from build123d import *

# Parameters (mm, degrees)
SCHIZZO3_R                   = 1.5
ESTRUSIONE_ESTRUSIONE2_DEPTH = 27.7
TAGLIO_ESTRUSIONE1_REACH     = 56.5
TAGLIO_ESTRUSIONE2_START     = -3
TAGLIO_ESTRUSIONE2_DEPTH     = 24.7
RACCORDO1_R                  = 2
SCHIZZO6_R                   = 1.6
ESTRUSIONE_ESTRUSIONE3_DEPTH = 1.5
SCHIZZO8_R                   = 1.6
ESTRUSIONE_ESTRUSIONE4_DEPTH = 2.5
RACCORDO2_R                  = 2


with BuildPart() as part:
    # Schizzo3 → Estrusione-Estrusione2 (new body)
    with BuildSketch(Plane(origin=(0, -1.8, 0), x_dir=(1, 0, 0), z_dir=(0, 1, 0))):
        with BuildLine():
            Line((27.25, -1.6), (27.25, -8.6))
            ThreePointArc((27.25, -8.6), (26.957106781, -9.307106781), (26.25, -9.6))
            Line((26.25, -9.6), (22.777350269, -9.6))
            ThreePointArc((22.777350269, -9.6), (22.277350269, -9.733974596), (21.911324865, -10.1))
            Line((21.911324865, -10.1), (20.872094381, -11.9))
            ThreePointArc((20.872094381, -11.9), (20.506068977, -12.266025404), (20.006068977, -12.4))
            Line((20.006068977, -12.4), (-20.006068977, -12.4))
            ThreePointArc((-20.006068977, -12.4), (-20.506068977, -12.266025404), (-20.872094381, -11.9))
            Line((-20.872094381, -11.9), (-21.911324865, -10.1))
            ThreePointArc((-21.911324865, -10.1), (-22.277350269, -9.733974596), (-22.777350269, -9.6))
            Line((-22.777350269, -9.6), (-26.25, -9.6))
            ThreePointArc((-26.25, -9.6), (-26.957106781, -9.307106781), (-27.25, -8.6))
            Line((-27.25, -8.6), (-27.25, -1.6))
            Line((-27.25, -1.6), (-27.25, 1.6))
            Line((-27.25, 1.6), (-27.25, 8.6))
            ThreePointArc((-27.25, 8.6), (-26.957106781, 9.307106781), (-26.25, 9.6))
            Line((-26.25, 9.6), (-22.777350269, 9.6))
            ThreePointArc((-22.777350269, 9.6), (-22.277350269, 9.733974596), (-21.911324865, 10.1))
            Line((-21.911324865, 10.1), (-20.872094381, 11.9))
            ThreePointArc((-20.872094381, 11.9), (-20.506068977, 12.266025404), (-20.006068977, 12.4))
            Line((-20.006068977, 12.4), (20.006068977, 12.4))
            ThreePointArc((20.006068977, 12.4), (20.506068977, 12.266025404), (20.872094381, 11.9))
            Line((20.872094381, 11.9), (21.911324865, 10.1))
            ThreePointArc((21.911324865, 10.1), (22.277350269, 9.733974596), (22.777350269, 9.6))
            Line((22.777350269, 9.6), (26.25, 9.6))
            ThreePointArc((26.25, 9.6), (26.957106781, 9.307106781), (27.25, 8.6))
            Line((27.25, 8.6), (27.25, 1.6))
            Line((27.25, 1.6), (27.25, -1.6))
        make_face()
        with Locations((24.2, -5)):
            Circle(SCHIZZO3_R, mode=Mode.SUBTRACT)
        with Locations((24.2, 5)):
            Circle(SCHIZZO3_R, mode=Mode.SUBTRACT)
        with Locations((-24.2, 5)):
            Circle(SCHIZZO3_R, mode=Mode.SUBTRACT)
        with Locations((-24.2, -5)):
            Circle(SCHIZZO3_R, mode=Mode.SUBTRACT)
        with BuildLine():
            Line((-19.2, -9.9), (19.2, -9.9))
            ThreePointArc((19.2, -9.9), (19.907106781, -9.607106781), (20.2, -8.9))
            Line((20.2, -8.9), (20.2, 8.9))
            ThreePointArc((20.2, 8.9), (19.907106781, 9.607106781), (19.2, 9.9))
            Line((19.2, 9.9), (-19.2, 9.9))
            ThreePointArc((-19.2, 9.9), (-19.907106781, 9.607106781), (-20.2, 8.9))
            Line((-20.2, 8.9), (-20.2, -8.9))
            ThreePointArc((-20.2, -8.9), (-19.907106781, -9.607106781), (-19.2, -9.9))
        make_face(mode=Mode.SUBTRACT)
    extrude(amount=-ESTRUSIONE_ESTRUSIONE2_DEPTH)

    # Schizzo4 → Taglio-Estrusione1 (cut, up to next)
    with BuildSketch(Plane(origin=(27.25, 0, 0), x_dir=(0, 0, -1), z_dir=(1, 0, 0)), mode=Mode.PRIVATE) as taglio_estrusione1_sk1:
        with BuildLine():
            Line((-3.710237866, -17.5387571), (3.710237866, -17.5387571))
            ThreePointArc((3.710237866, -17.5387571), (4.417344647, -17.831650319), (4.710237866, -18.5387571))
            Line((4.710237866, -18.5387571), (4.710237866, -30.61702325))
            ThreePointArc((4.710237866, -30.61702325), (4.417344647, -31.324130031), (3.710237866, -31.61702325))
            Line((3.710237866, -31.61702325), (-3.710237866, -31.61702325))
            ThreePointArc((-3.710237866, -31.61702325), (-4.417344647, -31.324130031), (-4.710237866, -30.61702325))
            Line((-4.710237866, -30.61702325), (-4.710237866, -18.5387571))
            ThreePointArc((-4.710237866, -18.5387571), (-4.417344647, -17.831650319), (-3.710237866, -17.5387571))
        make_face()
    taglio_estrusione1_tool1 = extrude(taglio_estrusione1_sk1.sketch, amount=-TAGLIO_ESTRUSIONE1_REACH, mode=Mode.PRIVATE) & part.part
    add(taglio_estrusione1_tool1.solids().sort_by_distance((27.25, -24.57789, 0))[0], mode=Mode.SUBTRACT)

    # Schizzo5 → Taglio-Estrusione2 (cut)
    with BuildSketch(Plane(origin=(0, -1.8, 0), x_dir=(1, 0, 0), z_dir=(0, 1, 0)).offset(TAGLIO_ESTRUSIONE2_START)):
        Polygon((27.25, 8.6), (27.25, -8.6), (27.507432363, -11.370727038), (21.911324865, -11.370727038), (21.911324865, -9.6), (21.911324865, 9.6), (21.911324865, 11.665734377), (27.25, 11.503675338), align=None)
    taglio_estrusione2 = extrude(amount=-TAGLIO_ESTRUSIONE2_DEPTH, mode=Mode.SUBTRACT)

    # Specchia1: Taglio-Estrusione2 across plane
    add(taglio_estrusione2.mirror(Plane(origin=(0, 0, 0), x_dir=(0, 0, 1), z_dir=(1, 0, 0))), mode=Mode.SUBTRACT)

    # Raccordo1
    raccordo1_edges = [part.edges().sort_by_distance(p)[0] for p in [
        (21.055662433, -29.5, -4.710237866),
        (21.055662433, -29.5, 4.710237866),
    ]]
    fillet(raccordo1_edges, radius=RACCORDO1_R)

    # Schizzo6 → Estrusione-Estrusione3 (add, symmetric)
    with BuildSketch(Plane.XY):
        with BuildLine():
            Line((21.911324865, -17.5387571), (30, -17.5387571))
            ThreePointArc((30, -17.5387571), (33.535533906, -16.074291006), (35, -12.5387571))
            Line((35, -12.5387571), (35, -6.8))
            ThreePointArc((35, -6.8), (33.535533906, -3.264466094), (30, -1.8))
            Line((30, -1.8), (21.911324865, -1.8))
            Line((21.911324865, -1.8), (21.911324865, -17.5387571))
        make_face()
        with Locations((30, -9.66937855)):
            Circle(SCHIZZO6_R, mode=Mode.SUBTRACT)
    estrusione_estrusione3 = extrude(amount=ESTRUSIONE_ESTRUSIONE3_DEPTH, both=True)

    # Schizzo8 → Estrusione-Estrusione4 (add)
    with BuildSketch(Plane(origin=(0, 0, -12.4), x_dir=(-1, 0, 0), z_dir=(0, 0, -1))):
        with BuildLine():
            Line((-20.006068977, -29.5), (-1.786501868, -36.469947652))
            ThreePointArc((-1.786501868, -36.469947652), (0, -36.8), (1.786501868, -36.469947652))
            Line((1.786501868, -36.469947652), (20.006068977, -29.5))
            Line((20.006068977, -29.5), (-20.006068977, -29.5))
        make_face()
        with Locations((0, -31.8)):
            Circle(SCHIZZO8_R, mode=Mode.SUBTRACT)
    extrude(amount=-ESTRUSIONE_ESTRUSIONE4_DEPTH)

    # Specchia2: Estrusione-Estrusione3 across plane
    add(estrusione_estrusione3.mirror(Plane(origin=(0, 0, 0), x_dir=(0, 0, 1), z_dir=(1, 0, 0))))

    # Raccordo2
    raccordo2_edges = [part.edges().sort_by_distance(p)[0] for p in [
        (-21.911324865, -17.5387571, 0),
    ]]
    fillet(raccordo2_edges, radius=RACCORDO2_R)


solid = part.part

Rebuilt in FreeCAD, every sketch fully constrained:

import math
import FreeCAD as App
import Part
import Sketcher

V = App.Vector
Q = App.Units.Quantity


def edges_at(feature, points):
    """Names of the edges that pass closest to the given points."""
    edges = feature.Shape.Edges
    near = lambda p: min(range(len(edges)), key=lambda i: edges[i].distToShape(Part.Vertex(*p))[0])
    return sorted({f"Edge{near(p) + 1}" for p in points})

doc = App.newDocument("Part")
body = doc.addObject("PartDesign::Body", "Body")

sketch1 = body.newObject("Sketcher::SketchObject", "Sketch")
sketch1.AttachmentSupport = (doc.getObject("XZ_Plane"), [""])
sketch1.MapMode = "FlatFace"
sketch1.AttachmentOffset = App.Placement(V(0, 0, 1.8), App.Rotation())
sketch1.addGeometry(Part.ArcOfCircle(Part.Circle(V(26.2, 8.6, 0), V(0, 0, 1), 1), math.radians(0), math.radians(90)), False)
sketch1.addGeometry(Part.LineSegment(V(27.2, 8.6, 0), V(27.2, -8.6, 0)), False)
sketch1.addGeometry(Part.ArcOfCircle(Part.Circle(V(26.2, -8.6, 0), V(0, 0, 1), 1), math.radians(-90), math.radians(0)), False)
sketch1.addGeometry(Part.LineSegment(V(26.2, -9.6, 0), V(22.8, -9.6, 0)), False)
sketch1.addGeometry(Part.ArcOfCircle(Part.Circle(V(22.8, -10.6, 0), V(0, 0, 1), 1), math.radians(90), math.radians(150)), False)
sketch1.addGeometry(Part.LineSegment(V(21.9, -10.1, 0), V(20.9, -11.9, 0)), False)
sketch1.addGeometry(Part.ArcOfCircle(Part.Circle(V(20, -11.4, 0), V(0, 0, 1), 1), math.radians(-90), math.radians(-30)), False)
sketch1.addGeometry(Part.LineSegment(V(20, -12.4, 0), V(-20, -12.4, 0)), False)
sketch1.addGeometry(Part.ArcOfCircle(Part.Circle(V(-20, -11.4, 0), V(0, 0, 1), 1), math.radians(-150), math.radians(-90)), False)
sketch1.addGeometry(Part.LineSegment(V(-20.9, -11.9, 0), V(-21.9, -10.1, 0)), False)
sketch1.addGeometry(Part.ArcOfCircle(Part.Circle(V(-22.8, -10.6, 0), V(0, 0, 1), 1), math.radians(30), math.radians(90)), False)
sketch1.addGeometry(Part.LineSegment(V(-22.8, -9.6, 0), V(-26.2, -9.6, 0)), False)
sketch1.addGeometry(Part.ArcOfCircle(Part.Circle(V(-26.2, -8.6, 0), V(0, 0, 1), 1), math.radians(-180), math.radians(-90)), False)
sketch1.addGeometry(Part.LineSegment(V(-27.2, -8.6, 0), V(-27.2, 8.6, 0)), False)
sketch1.addGeometry(Part.ArcOfCircle(Part.Circle(V(-26.2, 8.6, 0), V(0, 0, 1), 1), math.radians(90), math.radians(180)), False)
sketch1.addGeometry(Part.LineSegment(V(-26.2, 9.6, 0), V(-22.8, 9.6, 0)), False)
sketch1.addGeometry(Part.ArcOfCircle(Part.Circle(V(-22.8, 10.6, 0), V(0, 0, 1), 1), math.radians(-90), math.radians(-30)), False)
sketch1.addGeometry(Part.LineSegment(V(-21.9, 10.1, 0), V(-20.9, 11.9, 0)), False)
sketch1.addGeometry(Part.ArcOfCircle(Part.Circle(V(-20, 11.4, 0), V(0, 0, 1), 1), math.radians(90), math.radians(150)), False)
sketch1.addGeometry(Part.LineSegment(V(-20, 12.4, 0), V(20, 12.4, 0)), False)
sketch1.addGeometry(Part.ArcOfCircle(Part.Circle(V(20, 11.4, 0), V(0, 0, 1), 1), math.radians(30), math.radians(90)), False)
sketch1.addGeometry(Part.LineSegment(V(20.9, 11.9, 0), V(21.9, 10.1, 0)), False)
sketch1.addGeometry(Part.ArcOfCircle(Part.Circle(V(22.8, 10.6, 0), V(0, 0, 1), 1), math.radians(-150), math.radians(-90)), False)
sketch1.addGeometry(Part.LineSegment(V(22.8, 9.6, 0), V(26.2, 9.6, 0)), False)
sketch1.addGeometry(Part.Circle(V(24.2, 5, 0), V(0, 0, 1), 1.5), False)
sketch1.addGeometry(Part.Circle(V(-24.2, 5, 0), V(0, 0, 1), 1.5), False)
sketch1.addGeometry(Part.Circle(V(24.2, -5, 0), V(0, 0, 1), 1.5), False)
sketch1.addGeometry(Part.ArcOfCircle(Part.Circle(V(-19.2, 8.9, 0), V(0, 0, 1), 1), math.radians(90), math.radians(180)), False)
sketch1.addGeometry(Part.LineSegment(V(-20.2, 8.9, 0), V(-20.2, -8.9, 0)), False)
sketch1.addGeometry(Part.ArcOfCircle(Part.Circle(V(-19.2, -8.9, 0), V(0, 0, 1), 1), math.radians(-180), math.radians(-90)), False)
sketch1.addGeometry(Part.LineSegment(V(-19.2, -9.9, 0), V(19.2, -9.9, 0)), False)
sketch1.addGeometry(Part.ArcOfCircle(Part.Circle(V(19.2, -8.9, 0), V(0, 0, 1), 1), math.radians(-90), math.radians(0)), False)
sketch1.addGeometry(Part.LineSegment(V(20.2, -8.9, 0), V(20.2, 8.9, 0)), False)
sketch1.addGeometry(Part.ArcOfCircle(Part.Circle(V(19.2, 8.9, 0), V(0, 0, 1), 1), math.radians(0), math.radians(90)), False)
sketch1.addGeometry(Part.LineSegment(V(19.2, 9.9, 0), V(-19.2, 9.9, 0)), False)
sketch1.addGeometry(Part.Circle(V(-24.2, -5, 0), V(0, 0, 1), 1.5), False)
sketch1.addConstraint(Sketcher.Constraint("Tangent", 0, 1, 1, 1))
sketch1.addConstraint(Sketcher.Constraint("Tangent", 1, 2, 2, 2))
sketch1.addConstraint(Sketcher.Constraint("Tangent", 2, 1, 3, 1))
sketch1.addConstraint(Sketcher.Constraint("Tangent", 3, 2, 4, 1))
sketch1.addConstraint(Sketcher.Constraint("Tangent", 4, 2, 5, 1))
sketch1.addConstraint(Sketcher.Constraint("Tangent", 5, 2, 6, 2))
sketch1.addConstraint(Sketcher.Constraint("Tangent", 6, 1, 7, 1))
sketch1.addConstraint(Sketcher.Constraint("Tangent", 7, 2, 8, 2))
sketch1.addConstraint(Sketcher.Constraint("Tangent", 8, 1, 9, 1))
sketch1.addConstraint(Sketcher.Constraint("Tangent", 9, 2, 10, 1))
sketch1.addConstraint(Sketcher.Constraint("Tangent", 10, 2, 11, 1))
sketch1.addConstraint(Sketcher.Constraint("Tangent", 11, 2, 12, 2))
sketch1.addConstraint(Sketcher.Constraint("Tangent", 12, 1, 13, 1))
sketch1.addConstraint(Sketcher.Constraint("Tangent", 13, 2, 14, 2))
sketch1.addConstraint(Sketcher.Constraint("Tangent", 14, 1, 15, 1))
sketch1.addConstraint(Sketcher.Constraint("Tangent", 15, 2, 16, 1))
sketch1.addConstraint(Sketcher.Constraint("Tangent", 16, 2, 17, 1))
sketch1.addConstraint(Sketcher.Constraint("Tangent", 17, 2, 18, 2))
sketch1.addConstraint(Sketcher.Constraint("Tangent", 18, 1, 19, 1))
sketch1.addConstraint(Sketcher.Constraint("Tangent", 19, 2, 20, 2))
sketch1.addConstraint(Sketcher.Constraint("Tangent", 20, 1, 21, 1))
sketch1.addConstraint(Sketcher.Constraint("Tangent", 21, 2, 22, 1))
sketch1.addConstraint(Sketcher.Constraint("Tangent", 22, 2, 23, 1))
sketch1.addConstraint(Sketcher.Constraint("Tangent", 23, 2, 0, 2))
sketch1.addConstraint(Sketcher.Constraint("Tangent", 27, 2, 28, 1))
sketch1.addConstraint(Sketcher.Constraint("Tangent", 28, 2, 29, 1))
sketch1.addConstraint(Sketcher.Constraint("Tangent", 29, 2, 30, 1))
sketch1.addConstraint(Sketcher.Constraint("Tangent", 30, 2, 31, 1))
sketch1.addConstraint(Sketcher.Constraint("Tangent", 31, 2, 32, 1))
sketch1.addConstraint(Sketcher.Constraint("Tangent", 32, 2, 33, 1))
sketch1.addConstraint(Sketcher.Constraint("Tangent", 33, 2, 34, 1))
sketch1.addConstraint(Sketcher.Constraint("Tangent", 34, 2, 27, 1))
sketch1.addConstraint(Sketcher.Constraint("Vertical", 1))
sketch1.addConstraint(Sketcher.Constraint("Horizontal", 3))
sketch1.addConstraint(Sketcher.Constraint("Horizontal", 7))
sketch1.addConstraint(Sketcher.Constraint("Horizontal", 11))
sketch1.addConstraint(Sketcher.Constraint("Vertical", 13))
sketch1.addConstraint(Sketcher.Constraint("Horizontal", 15))
sketch1.addConstraint(Sketcher.Constraint("Horizontal", 19))
sketch1.addConstraint(Sketcher.Constraint("Horizontal", 23))
sketch1.addConstraint(Sketcher.Constraint("Vertical", 28))
sketch1.addConstraint(Sketcher.Constraint("Horizontal", 30))
sketch1.addConstraint(Sketcher.Constraint("Vertical", 32))
sketch1.addConstraint(Sketcher.Constraint("Horizontal", 34))
sketch1.addConstraint(Sketcher.Constraint("Equal", 0, 2))
sketch1.addConstraint(Sketcher.Constraint("Equal", 2, 4))
sketch1.addConstraint(Sketcher.Constraint("Equal", 4, 6))
sketch1.addConstraint(Sketcher.Constraint("Equal", 6, 8))
sketch1.addConstraint(Sketcher.Constraint("Equal", 8, 10))
sketch1.addConstraint(Sketcher.Constraint("Equal", 10, 12))
sketch1.addConstraint(Sketcher.Constraint("Equal", 12, 14))
sketch1.addConstraint(Sketcher.Constraint("Equal", 14, 16))
sketch1.addConstraint(Sketcher.Constraint("Equal", 16, 18))
sketch1.addConstraint(Sketcher.Constraint("Equal", 18, 20))
sketch1.addConstraint(Sketcher.Constraint("Equal", 20, 22))
sketch1.addConstraint(Sketcher.Constraint("Equal", 24, 25))
sketch1.addConstraint(Sketcher.Constraint("Equal", 25, 26))
sketch1.addConstraint(Sketcher.Constraint("Equal", 22, 27))
sketch1.addConstraint(Sketcher.Constraint("Equal", 27, 29))
sketch1.addConstraint(Sketcher.Constraint("Equal", 29, 31))
sketch1.addConstraint(Sketcher.Constraint("Equal", 31, 33))
sketch1.addConstraint(Sketcher.Constraint("Equal", 26, 35))
sketch1.addConstraint(Sketcher.Constraint("Symmetric", 0, 3, 12, 3, -1, 1))
sketch1.addConstraint(Sketcher.Constraint("Symmetric", 4, 3, 16, 3, -1, 1))
sketch1.addConstraint(Sketcher.Constraint("Symmetric", 6, 3, 18, 3, -1, 1))
sketch1.addConstraint(Sketcher.Constraint("Symmetric", 25, 3, 26, 3, -1, 1))
sketch1.addConstraint(Sketcher.Constraint("Symmetric", 27, 3, 31, 3, -1, 1))
sketch1.addConstraint(Sketcher.Constraint("Symmetric", 24, 3, 35, 3, -1, 1))
sketch1.addConstraint(Sketcher.Constraint("Symmetric", 8, 1, 20, 1, -1, 1))
sketch1.addConstraint(Sketcher.Constraint("Symmetric", 4, 3, 10, 3, -2))
sketch1.addConstraint(Sketcher.Constraint("Symmetric", 24, 3, 25, 3, -2))
sketch1.addConstraint(Sketcher.Constraint("Horizontal", 5, 2, 8, 1))
sketch1.addConstraint(Sketcher.Constraint("Diameter", 24, Q("3 mm")))
sketch1.addConstraint(Sketcher.Constraint("Radius", 0, Q("1 mm")))
sketch1.addConstraint(Sketcher.Constraint("Angle", 5, Q("-120 deg")))
sketch1.addConstraint(Sketcher.Constraint("DistanceX", 30, 1, 30, 2, Q("38.4 mm")))
sketch1.addConstraint(Sketcher.Constraint("DistanceY", 1, 2, 1, 1, Q("17.2 mm")))
sketch1.addConstraint(Sketcher.Constraint("DistanceY", 28, 2, 28, 1, Q("17.8 mm")))
sketch1.addConstraint(Sketcher.Constraint("DistanceY", -1, 1, 24, 3, Q("5 mm")))
sketch1.addConstraint(Sketcher.Constraint("DistanceY", 6, 3, 0, 3, Q("20 mm")))
sketch1.addConstraint(Sketcher.Constraint("DistanceX", 25, 3, 27, 3, Q("5 mm")))
sketch1.addConstraint(Sketcher.Constraint("DistanceX", 12, 3, 2, 3, Q("52.5 mm")))
sketch1.addConstraint(Sketcher.Constraint("DistanceX", 3, 2, 3, 1, Q("3.47265 mm")))
pad1 = body.newObject("PartDesign::Pad", "Pad")
pad1.Profile = sketch1
pad1.Length = 27.7

sketch2 = body.newObject("Sketcher::SketchObject", "Sketch001")
sketch2.AttachmentSupport = (doc.getObject("YZ_Plane"), [""])
sketch2.MapMode = "FlatFace"
sketch2.AttachmentOffset = App.Placement(V(0, 0, 27.25), App.Rotation())
sketch2.addGeometry(Part.LineSegment(V(-17.5, -3.7, 0), V(-17.5, 3.7, 0)), False)
sketch2.addGeometry(Part.ArcOfCircle(Part.Circle(V(-18.5, 3.7, 0), V(0, 0, 1), 1), math.radians(0), math.radians(90)), False)
sketch2.addGeometry(Part.LineSegment(V(-18.5, 4.7, 0), V(-30.6, 4.7, 0)), False)
sketch2.addGeometry(Part.ArcOfCircle(Part.Circle(V(-30.6, 3.7, 0), V(0, 0, 1), 1), math.radians(90), math.radians(180)), False)
sketch2.addGeometry(Part.LineSegment(V(-31.6, 3.7, 0), V(-31.6, -3.7, 0)), False)
sketch2.addGeometry(Part.ArcOfCircle(Part.Circle(V(-30.6, -3.7, 0), V(0, 0, 1), 1), math.radians(-180), math.radians(-90)), False)
sketch2.addGeometry(Part.LineSegment(V(-30.6, -4.7, 0), V(-18.5, -4.7, 0)), False)
sketch2.addGeometry(Part.ArcOfCircle(Part.Circle(V(-18.5, -3.7, 0), V(0, 0, 1), 1), math.radians(-90), math.radians(0)), False)
sketch2.addConstraint(Sketcher.Constraint("Tangent", 0, 2, 1, 1))
sketch2.addConstraint(Sketcher.Constraint("Tangent", 1, 2, 2, 1))
sketch2.addConstraint(Sketcher.Constraint("Tangent", 2, 2, 3, 1))
sketch2.addConstraint(Sketcher.Constraint("Tangent", 3, 2, 4, 1))
sketch2.addConstraint(Sketcher.Constraint("Tangent", 4, 2, 5, 1))
sketch2.addConstraint(Sketcher.Constraint("Tangent", 5, 2, 6, 1))
sketch2.addConstraint(Sketcher.Constraint("Tangent", 6, 2, 7, 1))
sketch2.addConstraint(Sketcher.Constraint("Tangent", 7, 2, 0, 1))
sketch2.addConstraint(Sketcher.Constraint("Vertical", 0))
sketch2.addConstraint(Sketcher.Constraint("Horizontal", 2))
sketch2.addConstraint(Sketcher.Constraint("Vertical", 4))
sketch2.addConstraint(Sketcher.Constraint("Horizontal", 6))
sketch2.addConstraint(Sketcher.Constraint("Equal", 1, 3))
sketch2.addConstraint(Sketcher.Constraint("Equal", 3, 5))
sketch2.addConstraint(Sketcher.Constraint("Equal", 5, 7))
sketch2.addConstraint(Sketcher.Constraint("Radius", 1, Q("1 mm")))
sketch2.addConstraint(Sketcher.Constraint("DistanceX", 2, 2, 2, 1, Q("12.078266 mm")))
sketch2.addConstraint(Sketcher.Constraint("DistanceY", 0, 1, 0, 2, Q("7.420476 mm")))
sketch2.addConstraint(Sketcher.Constraint("DistanceX", 1, 3, -1, 1, Q("18.538757 mm")))
sketch2.addConstraint(Sketcher.Constraint("DistanceY", -1, 1, 1, 3, Q("3.710238 mm")))
pocket1 = body.newObject("PartDesign::Pocket", "Pocket")
pocket1.Profile = sketch2
pocket1.Type = "UpToFirst"

sketch3 = body.newObject("Sketcher::SketchObject", "Sketch002")
sketch3.AttachmentSupport = (doc.getObject("XZ_Plane"), [""])
sketch3.MapMode = "FlatFace"
sketch3.AttachmentOffset = App.Placement(V(0, 0, 4.8), App.Rotation())
sketch3.addGeometry(Part.LineSegment(V(27.2, 8.6, 0), V(27.2, -11.5, 0)), False)
sketch3.addGeometry(Part.LineSegment(V(27.2, -11.5, 0), V(21.9, -11.7, 0)), False)
sketch3.addGeometry(Part.LineSegment(V(21.9, -11.7, 0), V(21.9, 11.4, 0)), False)
sketch3.addGeometry(Part.LineSegment(V(21.9, 11.4, 0), V(27.5, 11.4, 0)), False)
sketch3.addGeometry(Part.LineSegment(V(27.5, 11.4, 0), V(27.2, 8.6, 0)), False)
sketch3.addConstraint(Sketcher.Constraint("Coincident", 0, 2, 1, 1))
sketch3.addConstraint(Sketcher.Constraint("Coincident", 1, 2, 2, 1))
sketch3.addConstraint(Sketcher.Constraint("Coincident", 2, 2, 3, 1))
sketch3.addConstraint(Sketcher.Constraint("Coincident", 3, 2, 4, 1))
sketch3.addConstraint(Sketcher.Constraint("Coincident", 4, 2, 0, 1))
sketch3.addConstraint(Sketcher.Constraint("Vertical", 0))
sketch3.addConstraint(Sketcher.Constraint("Vertical", 2))
sketch3.addConstraint(Sketcher.Constraint("Horizontal", 3))
sketch3.addConstraint(Sketcher.Constraint("DistanceY", -1, 1, 4, 2, Q("8.6 mm")))
sketch3.addConstraint(Sketcher.Constraint("DistanceX", -1, 1, 0, 2, Q("27.25 mm")))
sketch3.addConstraint(Sketcher.Constraint("DistanceY", 2, 1, 2, 2, Q("23.036461 mm")))
sketch3.addConstraint(Sketcher.Constraint("Distance", 4, Q("2.782661 mm")))
sketch3.addConstraint(Sketcher.Constraint("DistanceX", 3, 1, 3, 2, Q("5.596107 mm")))
sketch3.addConstraint(Sketcher.Constraint("DistanceY", 0, 2, 0, 1, Q("20.103675 mm")))
sketch3.addConstraint(Sketcher.Constraint("DistanceY", 1, 2, 0, 2, Q("0.162059 mm")))
pocket2 = body.newObject("PartDesign::Pocket", "Pocket001")
pocket2.Profile = sketch3
pocket2.Length = 24.7
pocket2.Reversed = True
doc.recompute()

mirrored = body.newObject("PartDesign::Mirrored", "Mirrored")
mirrored.Originals = [pocket2]
mirrored.MirrorPlane = (doc.getObject("YZ_Plane"), [""])
body.Tip = mirrored
doc.recompute()

fillet = body.newObject("PartDesign::Fillet", "Fillet")
fillet.Base = (mirrored, edges_at(mirrored, [(21.056, -29.5, -4.71), (21.056, -29.5, 4.71)]))
fillet.Radius = 2

sketch4 = body.newObject("Sketcher::SketchObject", "Sketch003")
sketch4.AttachmentSupport = (doc.getObject("XY_Plane"), [""])
sketch4.MapMode = "FlatFace"
sketch4.addGeometry(Part.LineSegment(V(21.9, -17.5, 0), V(30, -17.5, 0)), False)
sketch4.addGeometry(Part.ArcOfCircle(Part.Circle(V(30, -12.5, 0), V(0, 0, 1), 5), math.radians(-90), math.radians(0)), False)
sketch4.addGeometry(Part.LineSegment(V(35, -12.5, 0), V(35, -6.8, 0)), False)
sketch4.addGeometry(Part.ArcOfCircle(Part.Circle(V(30, -6.8, 0), V(0, 0, 1), 5), math.radians(0), math.radians(90)), False)
sketch4.addGeometry(Part.LineSegment(V(30, -1.8, 0), V(21.9, -1.8, 0)), False)
sketch4.addGeometry(Part.LineSegment(V(21.9, -1.8, 0), V(21.9, -17.5, 0)), False)
sketch4.addGeometry(Part.Circle(V(30, -9.7, 0), V(0, 0, 1), 1.6), False)
sketch4.addConstraint(Sketcher.Constraint("Tangent", 0, 2, 1, 1))
sketch4.addConstraint(Sketcher.Constraint("Tangent", 1, 2, 2, 1))
sketch4.addConstraint(Sketcher.Constraint("Tangent", 2, 2, 3, 1))
sketch4.addConstraint(Sketcher.Constraint("Tangent", 3, 2, 4, 1))
sketch4.addConstraint(Sketcher.Constraint("Coincident", 4, 2, 5, 1))
sketch4.addConstraint(Sketcher.Constraint("Coincident", 5, 2, 0, 1))
sketch4.addConstraint(Sketcher.Constraint("Horizontal", 0))
sketch4.addConstraint(Sketcher.Constraint("Vertical", 2))
sketch4.addConstraint(Sketcher.Constraint("Horizontal", 4))
sketch4.addConstraint(Sketcher.Constraint("Vertical", 5))
sketch4.addConstraint(Sketcher.Constraint("Equal", 1, 3))
sketch4.addConstraint(Sketcher.Constraint("Vertical", 3, 3, 6, 3))
sketch4.addConstraint(Sketcher.Constraint("Radius", 1, Q("5 mm")))
sketch4.addConstraint(Sketcher.Constraint("Diameter", 6, Q("3.2 mm")))
sketch4.addConstraint(Sketcher.Constraint("DistanceX", -1, 1, 1, 3, Q("30 mm")))
sketch4.addConstraint(Sketcher.Constraint("DistanceY", 3, 3, -1, 1, Q("6.8 mm")))
sketch4.addConstraint(Sketcher.Constraint("DistanceX", 0, 1, 0, 2, Q("8.088675 mm")))
sketch4.addConstraint(Sketcher.Constraint("DistanceY", 2, 1, 2, 2, Q("5.738757 mm")))
sketch4.addConstraint(Sketcher.Constraint("DistanceY", 6, 3, -1, 1, Q("9.669379 mm")))
pad2 = body.newObject("PartDesign::Pad", "Pad001")
pad2.Profile = sketch4
pad2.Length = 3
pad2.Midplane = True

sketch5 = body.newObject("Sketcher::SketchObject", "Sketch004")
sketch5.AttachmentSupport = (doc.getObject("XY_Plane"), [""])
sketch5.MapMode = "FlatFace"
sketch5.AttachmentOffset = App.Placement(V(0, 0, -12.4), App.Rotation())
sketch5.addGeometry(Part.LineSegment(V(20, -29.5, 0), V(1.8, -36.5, 0)), False)
sketch5.addGeometry(Part.ArcOfCircle(Part.Circle(V(0, -31.8, 0), V(0, 0, 1), 5), math.radians(-111), math.radians(-69)), False)
sketch5.addGeometry(Part.LineSegment(V(-1.8, -36.5, 0), V(-20, -29.5, 0)), False)
sketch5.addGeometry(Part.LineSegment(V(-20, -29.5, 0), V(20, -29.5, 0)), False)
sketch5.addGeometry(Part.Circle(V(0, -31.8, 0), V(0, 0, 1), 1.6), False)
sketch5.addConstraint(Sketcher.Constraint("Tangent", 0, 2, 1, 2))
sketch5.addConstraint(Sketcher.Constraint("Tangent", 1, 1, 2, 1))
sketch5.addConstraint(Sketcher.Constraint("Coincident", 2, 2, 3, 1))
sketch5.addConstraint(Sketcher.Constraint("Coincident", 3, 2, 0, 1))
sketch5.addConstraint(Sketcher.Constraint("Horizontal", 3))
sketch5.addConstraint(Sketcher.Constraint("Coincident", 4, 3, 1, 3))
sketch5.addConstraint(Sketcher.Constraint("Symmetric", 0, 2, 1, 1, -2))
sketch5.addConstraint(Sketcher.Constraint("Radius", 1, Q("5 mm")))
sketch5.addConstraint(Sketcher.Constraint("Diameter", 4, Q("3.2 mm")))
sketch5.addConstraint(Sketcher.Constraint("DistanceY", 1, 3, -1, 1, Q("31.8 mm")))
sketch5.addConstraint(Sketcher.Constraint("DistanceY", 2, 2, -1, 1, Q("29.5 mm")))
sketch5.addConstraint(Sketcher.Constraint("DistanceX", -1, 1, 0, 2, Q("1.786502 mm")))
pad3 = body.newObject("PartDesign::Pad", "Pad002")
pad3.Profile = sketch5
pad3.Length = 2.5
doc.recompute()

mirrored2 = body.newObject("PartDesign::Mirrored", "Mirrored001")
mirrored2.Originals = [pad2]
mirrored2.MirrorPlane = (doc.getObject("YZ_Plane"), [""])
body.Tip = mirrored2
doc.recompute()

fillet2 = body.newObject("PartDesign::Fillet", "Fillet001")
fillet2.Base = (mirrored2, edges_at(mirrored2, [(-21.911, -17.539, 0)]))
fillet2.Radius = 2

doc.recompute()
